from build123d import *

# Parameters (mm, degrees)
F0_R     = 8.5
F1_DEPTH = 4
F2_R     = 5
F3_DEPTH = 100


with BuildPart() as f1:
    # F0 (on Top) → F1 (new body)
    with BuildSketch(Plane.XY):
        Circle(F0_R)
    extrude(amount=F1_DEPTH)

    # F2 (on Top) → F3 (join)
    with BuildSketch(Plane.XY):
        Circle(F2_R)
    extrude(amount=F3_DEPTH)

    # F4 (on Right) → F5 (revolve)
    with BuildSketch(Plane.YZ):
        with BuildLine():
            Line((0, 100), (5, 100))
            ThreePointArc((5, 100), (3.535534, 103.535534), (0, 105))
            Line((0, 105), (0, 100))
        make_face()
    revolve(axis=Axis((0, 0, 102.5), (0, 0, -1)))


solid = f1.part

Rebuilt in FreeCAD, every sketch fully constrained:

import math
import FreeCAD as App
import Part
import Sketcher

V = App.Vector
Q = App.Units.Quantity

doc = App.newDocument("Part")
body = doc.addObject("PartDesign::Body", "Body")

# Sketch on XY plane
sketch1 = body.newObject("Sketcher::SketchObject", "Sketch")
sketch1.AttachmentSupport = (doc.getObject("XY_Plane"), [""])
sketch1.MapMode = "FlatFace"
sketch1.addGeometry(Part.Circle(V(0, 0, 0), V(0, 0, 1), 8), False)
sketch1.addConstraint(Sketcher.Constraint("Coincident", 0, 3, -1, 1))
sketch1.addConstraint(Sketcher.Constraint("Diameter", 0, Q("17 mm")))
pad1 = body.newObject("PartDesign::Pad", "Pad")
pad1.Profile = sketch1
pad1.Length = 4

# Sketch on XY plane
sketch2 = body.newObject("Sketcher::SketchObject", "Sketch001")
sketch2.AttachmentSupport = (doc.getObject("XY_Plane"), [""])
sketch2.MapMode = "FlatFace"
sketch2.addGeometry(Part.Circle(V(0, 0, 0), V(0, 0, 1), 5), False)
sketch2.addConstraint(Sketcher.Constraint("Coincident", 0, 3, -1, 1))
sketch2.addConstraint(Sketcher.Constraint("Diameter", 0, Q("10 mm")))
pad2 = body.newObject("PartDesign::Pad", "Pad001")
pad2.Profile = sketch2
pad2.Length = 100

# Sketch on YZ plane
sketch3 = body.newObject("Sketcher::SketchObject", "Sketch002")
sketch3.AttachmentSupport = (doc.getObject("YZ_Plane"), [""])
sketch3.MapMode = "FlatFace"
sketch3.addGeometry(Part.LineSegment(V(0, 100, 0), V(5, 100, 0)), False)
sketch3.addGeometry(Part.ArcOfCircle(Part.Circle(V(0, 100, 0), V(0, 0, 1), 5), math.radians(0), math.radians(90)), False)
sketch3.addGeometry(Part.LineSegment(V(0, 105, 0), V(0, 100, 0)), False)
sketch3.addConstraint(Sketcher.Constraint("Coincident", 0, 2, 1, 1))
sketch3.addConstraint(Sketcher.Constraint("Coincident", 1, 2, 2, 1))
sketch3.addConstraint(Sketcher.Constraint("Coincident", 2, 2, 0, 1))
sketch3.addConstraint(Sketcher.Constraint("Horizontal", 0))
sketch3.addConstraint(Sketcher.Constraint("Vertical", 2))
sketch3.addConstraint(Sketcher.Constraint("Coincident", 2, 2, 1, 3))
sketch3.addConstraint(Sketcher.Constraint("PointOnObject", 1, 3, -2))
sketch3.addConstraint(Sketcher.Constraint("Radius", 1, Q("5 mm")))
sketch3.addConstraint(Sketcher.Constraint("DistanceY", -1, 1, 1, 3, Q("100 mm")))
revolution = body.newObject("PartDesign::Revolution", "Revolution")
revolution.Profile = sketch3
revolution.ReferenceAxis = (sketch3, ["V_Axis"])
revolution.Angle = 360

doc.recompute()
